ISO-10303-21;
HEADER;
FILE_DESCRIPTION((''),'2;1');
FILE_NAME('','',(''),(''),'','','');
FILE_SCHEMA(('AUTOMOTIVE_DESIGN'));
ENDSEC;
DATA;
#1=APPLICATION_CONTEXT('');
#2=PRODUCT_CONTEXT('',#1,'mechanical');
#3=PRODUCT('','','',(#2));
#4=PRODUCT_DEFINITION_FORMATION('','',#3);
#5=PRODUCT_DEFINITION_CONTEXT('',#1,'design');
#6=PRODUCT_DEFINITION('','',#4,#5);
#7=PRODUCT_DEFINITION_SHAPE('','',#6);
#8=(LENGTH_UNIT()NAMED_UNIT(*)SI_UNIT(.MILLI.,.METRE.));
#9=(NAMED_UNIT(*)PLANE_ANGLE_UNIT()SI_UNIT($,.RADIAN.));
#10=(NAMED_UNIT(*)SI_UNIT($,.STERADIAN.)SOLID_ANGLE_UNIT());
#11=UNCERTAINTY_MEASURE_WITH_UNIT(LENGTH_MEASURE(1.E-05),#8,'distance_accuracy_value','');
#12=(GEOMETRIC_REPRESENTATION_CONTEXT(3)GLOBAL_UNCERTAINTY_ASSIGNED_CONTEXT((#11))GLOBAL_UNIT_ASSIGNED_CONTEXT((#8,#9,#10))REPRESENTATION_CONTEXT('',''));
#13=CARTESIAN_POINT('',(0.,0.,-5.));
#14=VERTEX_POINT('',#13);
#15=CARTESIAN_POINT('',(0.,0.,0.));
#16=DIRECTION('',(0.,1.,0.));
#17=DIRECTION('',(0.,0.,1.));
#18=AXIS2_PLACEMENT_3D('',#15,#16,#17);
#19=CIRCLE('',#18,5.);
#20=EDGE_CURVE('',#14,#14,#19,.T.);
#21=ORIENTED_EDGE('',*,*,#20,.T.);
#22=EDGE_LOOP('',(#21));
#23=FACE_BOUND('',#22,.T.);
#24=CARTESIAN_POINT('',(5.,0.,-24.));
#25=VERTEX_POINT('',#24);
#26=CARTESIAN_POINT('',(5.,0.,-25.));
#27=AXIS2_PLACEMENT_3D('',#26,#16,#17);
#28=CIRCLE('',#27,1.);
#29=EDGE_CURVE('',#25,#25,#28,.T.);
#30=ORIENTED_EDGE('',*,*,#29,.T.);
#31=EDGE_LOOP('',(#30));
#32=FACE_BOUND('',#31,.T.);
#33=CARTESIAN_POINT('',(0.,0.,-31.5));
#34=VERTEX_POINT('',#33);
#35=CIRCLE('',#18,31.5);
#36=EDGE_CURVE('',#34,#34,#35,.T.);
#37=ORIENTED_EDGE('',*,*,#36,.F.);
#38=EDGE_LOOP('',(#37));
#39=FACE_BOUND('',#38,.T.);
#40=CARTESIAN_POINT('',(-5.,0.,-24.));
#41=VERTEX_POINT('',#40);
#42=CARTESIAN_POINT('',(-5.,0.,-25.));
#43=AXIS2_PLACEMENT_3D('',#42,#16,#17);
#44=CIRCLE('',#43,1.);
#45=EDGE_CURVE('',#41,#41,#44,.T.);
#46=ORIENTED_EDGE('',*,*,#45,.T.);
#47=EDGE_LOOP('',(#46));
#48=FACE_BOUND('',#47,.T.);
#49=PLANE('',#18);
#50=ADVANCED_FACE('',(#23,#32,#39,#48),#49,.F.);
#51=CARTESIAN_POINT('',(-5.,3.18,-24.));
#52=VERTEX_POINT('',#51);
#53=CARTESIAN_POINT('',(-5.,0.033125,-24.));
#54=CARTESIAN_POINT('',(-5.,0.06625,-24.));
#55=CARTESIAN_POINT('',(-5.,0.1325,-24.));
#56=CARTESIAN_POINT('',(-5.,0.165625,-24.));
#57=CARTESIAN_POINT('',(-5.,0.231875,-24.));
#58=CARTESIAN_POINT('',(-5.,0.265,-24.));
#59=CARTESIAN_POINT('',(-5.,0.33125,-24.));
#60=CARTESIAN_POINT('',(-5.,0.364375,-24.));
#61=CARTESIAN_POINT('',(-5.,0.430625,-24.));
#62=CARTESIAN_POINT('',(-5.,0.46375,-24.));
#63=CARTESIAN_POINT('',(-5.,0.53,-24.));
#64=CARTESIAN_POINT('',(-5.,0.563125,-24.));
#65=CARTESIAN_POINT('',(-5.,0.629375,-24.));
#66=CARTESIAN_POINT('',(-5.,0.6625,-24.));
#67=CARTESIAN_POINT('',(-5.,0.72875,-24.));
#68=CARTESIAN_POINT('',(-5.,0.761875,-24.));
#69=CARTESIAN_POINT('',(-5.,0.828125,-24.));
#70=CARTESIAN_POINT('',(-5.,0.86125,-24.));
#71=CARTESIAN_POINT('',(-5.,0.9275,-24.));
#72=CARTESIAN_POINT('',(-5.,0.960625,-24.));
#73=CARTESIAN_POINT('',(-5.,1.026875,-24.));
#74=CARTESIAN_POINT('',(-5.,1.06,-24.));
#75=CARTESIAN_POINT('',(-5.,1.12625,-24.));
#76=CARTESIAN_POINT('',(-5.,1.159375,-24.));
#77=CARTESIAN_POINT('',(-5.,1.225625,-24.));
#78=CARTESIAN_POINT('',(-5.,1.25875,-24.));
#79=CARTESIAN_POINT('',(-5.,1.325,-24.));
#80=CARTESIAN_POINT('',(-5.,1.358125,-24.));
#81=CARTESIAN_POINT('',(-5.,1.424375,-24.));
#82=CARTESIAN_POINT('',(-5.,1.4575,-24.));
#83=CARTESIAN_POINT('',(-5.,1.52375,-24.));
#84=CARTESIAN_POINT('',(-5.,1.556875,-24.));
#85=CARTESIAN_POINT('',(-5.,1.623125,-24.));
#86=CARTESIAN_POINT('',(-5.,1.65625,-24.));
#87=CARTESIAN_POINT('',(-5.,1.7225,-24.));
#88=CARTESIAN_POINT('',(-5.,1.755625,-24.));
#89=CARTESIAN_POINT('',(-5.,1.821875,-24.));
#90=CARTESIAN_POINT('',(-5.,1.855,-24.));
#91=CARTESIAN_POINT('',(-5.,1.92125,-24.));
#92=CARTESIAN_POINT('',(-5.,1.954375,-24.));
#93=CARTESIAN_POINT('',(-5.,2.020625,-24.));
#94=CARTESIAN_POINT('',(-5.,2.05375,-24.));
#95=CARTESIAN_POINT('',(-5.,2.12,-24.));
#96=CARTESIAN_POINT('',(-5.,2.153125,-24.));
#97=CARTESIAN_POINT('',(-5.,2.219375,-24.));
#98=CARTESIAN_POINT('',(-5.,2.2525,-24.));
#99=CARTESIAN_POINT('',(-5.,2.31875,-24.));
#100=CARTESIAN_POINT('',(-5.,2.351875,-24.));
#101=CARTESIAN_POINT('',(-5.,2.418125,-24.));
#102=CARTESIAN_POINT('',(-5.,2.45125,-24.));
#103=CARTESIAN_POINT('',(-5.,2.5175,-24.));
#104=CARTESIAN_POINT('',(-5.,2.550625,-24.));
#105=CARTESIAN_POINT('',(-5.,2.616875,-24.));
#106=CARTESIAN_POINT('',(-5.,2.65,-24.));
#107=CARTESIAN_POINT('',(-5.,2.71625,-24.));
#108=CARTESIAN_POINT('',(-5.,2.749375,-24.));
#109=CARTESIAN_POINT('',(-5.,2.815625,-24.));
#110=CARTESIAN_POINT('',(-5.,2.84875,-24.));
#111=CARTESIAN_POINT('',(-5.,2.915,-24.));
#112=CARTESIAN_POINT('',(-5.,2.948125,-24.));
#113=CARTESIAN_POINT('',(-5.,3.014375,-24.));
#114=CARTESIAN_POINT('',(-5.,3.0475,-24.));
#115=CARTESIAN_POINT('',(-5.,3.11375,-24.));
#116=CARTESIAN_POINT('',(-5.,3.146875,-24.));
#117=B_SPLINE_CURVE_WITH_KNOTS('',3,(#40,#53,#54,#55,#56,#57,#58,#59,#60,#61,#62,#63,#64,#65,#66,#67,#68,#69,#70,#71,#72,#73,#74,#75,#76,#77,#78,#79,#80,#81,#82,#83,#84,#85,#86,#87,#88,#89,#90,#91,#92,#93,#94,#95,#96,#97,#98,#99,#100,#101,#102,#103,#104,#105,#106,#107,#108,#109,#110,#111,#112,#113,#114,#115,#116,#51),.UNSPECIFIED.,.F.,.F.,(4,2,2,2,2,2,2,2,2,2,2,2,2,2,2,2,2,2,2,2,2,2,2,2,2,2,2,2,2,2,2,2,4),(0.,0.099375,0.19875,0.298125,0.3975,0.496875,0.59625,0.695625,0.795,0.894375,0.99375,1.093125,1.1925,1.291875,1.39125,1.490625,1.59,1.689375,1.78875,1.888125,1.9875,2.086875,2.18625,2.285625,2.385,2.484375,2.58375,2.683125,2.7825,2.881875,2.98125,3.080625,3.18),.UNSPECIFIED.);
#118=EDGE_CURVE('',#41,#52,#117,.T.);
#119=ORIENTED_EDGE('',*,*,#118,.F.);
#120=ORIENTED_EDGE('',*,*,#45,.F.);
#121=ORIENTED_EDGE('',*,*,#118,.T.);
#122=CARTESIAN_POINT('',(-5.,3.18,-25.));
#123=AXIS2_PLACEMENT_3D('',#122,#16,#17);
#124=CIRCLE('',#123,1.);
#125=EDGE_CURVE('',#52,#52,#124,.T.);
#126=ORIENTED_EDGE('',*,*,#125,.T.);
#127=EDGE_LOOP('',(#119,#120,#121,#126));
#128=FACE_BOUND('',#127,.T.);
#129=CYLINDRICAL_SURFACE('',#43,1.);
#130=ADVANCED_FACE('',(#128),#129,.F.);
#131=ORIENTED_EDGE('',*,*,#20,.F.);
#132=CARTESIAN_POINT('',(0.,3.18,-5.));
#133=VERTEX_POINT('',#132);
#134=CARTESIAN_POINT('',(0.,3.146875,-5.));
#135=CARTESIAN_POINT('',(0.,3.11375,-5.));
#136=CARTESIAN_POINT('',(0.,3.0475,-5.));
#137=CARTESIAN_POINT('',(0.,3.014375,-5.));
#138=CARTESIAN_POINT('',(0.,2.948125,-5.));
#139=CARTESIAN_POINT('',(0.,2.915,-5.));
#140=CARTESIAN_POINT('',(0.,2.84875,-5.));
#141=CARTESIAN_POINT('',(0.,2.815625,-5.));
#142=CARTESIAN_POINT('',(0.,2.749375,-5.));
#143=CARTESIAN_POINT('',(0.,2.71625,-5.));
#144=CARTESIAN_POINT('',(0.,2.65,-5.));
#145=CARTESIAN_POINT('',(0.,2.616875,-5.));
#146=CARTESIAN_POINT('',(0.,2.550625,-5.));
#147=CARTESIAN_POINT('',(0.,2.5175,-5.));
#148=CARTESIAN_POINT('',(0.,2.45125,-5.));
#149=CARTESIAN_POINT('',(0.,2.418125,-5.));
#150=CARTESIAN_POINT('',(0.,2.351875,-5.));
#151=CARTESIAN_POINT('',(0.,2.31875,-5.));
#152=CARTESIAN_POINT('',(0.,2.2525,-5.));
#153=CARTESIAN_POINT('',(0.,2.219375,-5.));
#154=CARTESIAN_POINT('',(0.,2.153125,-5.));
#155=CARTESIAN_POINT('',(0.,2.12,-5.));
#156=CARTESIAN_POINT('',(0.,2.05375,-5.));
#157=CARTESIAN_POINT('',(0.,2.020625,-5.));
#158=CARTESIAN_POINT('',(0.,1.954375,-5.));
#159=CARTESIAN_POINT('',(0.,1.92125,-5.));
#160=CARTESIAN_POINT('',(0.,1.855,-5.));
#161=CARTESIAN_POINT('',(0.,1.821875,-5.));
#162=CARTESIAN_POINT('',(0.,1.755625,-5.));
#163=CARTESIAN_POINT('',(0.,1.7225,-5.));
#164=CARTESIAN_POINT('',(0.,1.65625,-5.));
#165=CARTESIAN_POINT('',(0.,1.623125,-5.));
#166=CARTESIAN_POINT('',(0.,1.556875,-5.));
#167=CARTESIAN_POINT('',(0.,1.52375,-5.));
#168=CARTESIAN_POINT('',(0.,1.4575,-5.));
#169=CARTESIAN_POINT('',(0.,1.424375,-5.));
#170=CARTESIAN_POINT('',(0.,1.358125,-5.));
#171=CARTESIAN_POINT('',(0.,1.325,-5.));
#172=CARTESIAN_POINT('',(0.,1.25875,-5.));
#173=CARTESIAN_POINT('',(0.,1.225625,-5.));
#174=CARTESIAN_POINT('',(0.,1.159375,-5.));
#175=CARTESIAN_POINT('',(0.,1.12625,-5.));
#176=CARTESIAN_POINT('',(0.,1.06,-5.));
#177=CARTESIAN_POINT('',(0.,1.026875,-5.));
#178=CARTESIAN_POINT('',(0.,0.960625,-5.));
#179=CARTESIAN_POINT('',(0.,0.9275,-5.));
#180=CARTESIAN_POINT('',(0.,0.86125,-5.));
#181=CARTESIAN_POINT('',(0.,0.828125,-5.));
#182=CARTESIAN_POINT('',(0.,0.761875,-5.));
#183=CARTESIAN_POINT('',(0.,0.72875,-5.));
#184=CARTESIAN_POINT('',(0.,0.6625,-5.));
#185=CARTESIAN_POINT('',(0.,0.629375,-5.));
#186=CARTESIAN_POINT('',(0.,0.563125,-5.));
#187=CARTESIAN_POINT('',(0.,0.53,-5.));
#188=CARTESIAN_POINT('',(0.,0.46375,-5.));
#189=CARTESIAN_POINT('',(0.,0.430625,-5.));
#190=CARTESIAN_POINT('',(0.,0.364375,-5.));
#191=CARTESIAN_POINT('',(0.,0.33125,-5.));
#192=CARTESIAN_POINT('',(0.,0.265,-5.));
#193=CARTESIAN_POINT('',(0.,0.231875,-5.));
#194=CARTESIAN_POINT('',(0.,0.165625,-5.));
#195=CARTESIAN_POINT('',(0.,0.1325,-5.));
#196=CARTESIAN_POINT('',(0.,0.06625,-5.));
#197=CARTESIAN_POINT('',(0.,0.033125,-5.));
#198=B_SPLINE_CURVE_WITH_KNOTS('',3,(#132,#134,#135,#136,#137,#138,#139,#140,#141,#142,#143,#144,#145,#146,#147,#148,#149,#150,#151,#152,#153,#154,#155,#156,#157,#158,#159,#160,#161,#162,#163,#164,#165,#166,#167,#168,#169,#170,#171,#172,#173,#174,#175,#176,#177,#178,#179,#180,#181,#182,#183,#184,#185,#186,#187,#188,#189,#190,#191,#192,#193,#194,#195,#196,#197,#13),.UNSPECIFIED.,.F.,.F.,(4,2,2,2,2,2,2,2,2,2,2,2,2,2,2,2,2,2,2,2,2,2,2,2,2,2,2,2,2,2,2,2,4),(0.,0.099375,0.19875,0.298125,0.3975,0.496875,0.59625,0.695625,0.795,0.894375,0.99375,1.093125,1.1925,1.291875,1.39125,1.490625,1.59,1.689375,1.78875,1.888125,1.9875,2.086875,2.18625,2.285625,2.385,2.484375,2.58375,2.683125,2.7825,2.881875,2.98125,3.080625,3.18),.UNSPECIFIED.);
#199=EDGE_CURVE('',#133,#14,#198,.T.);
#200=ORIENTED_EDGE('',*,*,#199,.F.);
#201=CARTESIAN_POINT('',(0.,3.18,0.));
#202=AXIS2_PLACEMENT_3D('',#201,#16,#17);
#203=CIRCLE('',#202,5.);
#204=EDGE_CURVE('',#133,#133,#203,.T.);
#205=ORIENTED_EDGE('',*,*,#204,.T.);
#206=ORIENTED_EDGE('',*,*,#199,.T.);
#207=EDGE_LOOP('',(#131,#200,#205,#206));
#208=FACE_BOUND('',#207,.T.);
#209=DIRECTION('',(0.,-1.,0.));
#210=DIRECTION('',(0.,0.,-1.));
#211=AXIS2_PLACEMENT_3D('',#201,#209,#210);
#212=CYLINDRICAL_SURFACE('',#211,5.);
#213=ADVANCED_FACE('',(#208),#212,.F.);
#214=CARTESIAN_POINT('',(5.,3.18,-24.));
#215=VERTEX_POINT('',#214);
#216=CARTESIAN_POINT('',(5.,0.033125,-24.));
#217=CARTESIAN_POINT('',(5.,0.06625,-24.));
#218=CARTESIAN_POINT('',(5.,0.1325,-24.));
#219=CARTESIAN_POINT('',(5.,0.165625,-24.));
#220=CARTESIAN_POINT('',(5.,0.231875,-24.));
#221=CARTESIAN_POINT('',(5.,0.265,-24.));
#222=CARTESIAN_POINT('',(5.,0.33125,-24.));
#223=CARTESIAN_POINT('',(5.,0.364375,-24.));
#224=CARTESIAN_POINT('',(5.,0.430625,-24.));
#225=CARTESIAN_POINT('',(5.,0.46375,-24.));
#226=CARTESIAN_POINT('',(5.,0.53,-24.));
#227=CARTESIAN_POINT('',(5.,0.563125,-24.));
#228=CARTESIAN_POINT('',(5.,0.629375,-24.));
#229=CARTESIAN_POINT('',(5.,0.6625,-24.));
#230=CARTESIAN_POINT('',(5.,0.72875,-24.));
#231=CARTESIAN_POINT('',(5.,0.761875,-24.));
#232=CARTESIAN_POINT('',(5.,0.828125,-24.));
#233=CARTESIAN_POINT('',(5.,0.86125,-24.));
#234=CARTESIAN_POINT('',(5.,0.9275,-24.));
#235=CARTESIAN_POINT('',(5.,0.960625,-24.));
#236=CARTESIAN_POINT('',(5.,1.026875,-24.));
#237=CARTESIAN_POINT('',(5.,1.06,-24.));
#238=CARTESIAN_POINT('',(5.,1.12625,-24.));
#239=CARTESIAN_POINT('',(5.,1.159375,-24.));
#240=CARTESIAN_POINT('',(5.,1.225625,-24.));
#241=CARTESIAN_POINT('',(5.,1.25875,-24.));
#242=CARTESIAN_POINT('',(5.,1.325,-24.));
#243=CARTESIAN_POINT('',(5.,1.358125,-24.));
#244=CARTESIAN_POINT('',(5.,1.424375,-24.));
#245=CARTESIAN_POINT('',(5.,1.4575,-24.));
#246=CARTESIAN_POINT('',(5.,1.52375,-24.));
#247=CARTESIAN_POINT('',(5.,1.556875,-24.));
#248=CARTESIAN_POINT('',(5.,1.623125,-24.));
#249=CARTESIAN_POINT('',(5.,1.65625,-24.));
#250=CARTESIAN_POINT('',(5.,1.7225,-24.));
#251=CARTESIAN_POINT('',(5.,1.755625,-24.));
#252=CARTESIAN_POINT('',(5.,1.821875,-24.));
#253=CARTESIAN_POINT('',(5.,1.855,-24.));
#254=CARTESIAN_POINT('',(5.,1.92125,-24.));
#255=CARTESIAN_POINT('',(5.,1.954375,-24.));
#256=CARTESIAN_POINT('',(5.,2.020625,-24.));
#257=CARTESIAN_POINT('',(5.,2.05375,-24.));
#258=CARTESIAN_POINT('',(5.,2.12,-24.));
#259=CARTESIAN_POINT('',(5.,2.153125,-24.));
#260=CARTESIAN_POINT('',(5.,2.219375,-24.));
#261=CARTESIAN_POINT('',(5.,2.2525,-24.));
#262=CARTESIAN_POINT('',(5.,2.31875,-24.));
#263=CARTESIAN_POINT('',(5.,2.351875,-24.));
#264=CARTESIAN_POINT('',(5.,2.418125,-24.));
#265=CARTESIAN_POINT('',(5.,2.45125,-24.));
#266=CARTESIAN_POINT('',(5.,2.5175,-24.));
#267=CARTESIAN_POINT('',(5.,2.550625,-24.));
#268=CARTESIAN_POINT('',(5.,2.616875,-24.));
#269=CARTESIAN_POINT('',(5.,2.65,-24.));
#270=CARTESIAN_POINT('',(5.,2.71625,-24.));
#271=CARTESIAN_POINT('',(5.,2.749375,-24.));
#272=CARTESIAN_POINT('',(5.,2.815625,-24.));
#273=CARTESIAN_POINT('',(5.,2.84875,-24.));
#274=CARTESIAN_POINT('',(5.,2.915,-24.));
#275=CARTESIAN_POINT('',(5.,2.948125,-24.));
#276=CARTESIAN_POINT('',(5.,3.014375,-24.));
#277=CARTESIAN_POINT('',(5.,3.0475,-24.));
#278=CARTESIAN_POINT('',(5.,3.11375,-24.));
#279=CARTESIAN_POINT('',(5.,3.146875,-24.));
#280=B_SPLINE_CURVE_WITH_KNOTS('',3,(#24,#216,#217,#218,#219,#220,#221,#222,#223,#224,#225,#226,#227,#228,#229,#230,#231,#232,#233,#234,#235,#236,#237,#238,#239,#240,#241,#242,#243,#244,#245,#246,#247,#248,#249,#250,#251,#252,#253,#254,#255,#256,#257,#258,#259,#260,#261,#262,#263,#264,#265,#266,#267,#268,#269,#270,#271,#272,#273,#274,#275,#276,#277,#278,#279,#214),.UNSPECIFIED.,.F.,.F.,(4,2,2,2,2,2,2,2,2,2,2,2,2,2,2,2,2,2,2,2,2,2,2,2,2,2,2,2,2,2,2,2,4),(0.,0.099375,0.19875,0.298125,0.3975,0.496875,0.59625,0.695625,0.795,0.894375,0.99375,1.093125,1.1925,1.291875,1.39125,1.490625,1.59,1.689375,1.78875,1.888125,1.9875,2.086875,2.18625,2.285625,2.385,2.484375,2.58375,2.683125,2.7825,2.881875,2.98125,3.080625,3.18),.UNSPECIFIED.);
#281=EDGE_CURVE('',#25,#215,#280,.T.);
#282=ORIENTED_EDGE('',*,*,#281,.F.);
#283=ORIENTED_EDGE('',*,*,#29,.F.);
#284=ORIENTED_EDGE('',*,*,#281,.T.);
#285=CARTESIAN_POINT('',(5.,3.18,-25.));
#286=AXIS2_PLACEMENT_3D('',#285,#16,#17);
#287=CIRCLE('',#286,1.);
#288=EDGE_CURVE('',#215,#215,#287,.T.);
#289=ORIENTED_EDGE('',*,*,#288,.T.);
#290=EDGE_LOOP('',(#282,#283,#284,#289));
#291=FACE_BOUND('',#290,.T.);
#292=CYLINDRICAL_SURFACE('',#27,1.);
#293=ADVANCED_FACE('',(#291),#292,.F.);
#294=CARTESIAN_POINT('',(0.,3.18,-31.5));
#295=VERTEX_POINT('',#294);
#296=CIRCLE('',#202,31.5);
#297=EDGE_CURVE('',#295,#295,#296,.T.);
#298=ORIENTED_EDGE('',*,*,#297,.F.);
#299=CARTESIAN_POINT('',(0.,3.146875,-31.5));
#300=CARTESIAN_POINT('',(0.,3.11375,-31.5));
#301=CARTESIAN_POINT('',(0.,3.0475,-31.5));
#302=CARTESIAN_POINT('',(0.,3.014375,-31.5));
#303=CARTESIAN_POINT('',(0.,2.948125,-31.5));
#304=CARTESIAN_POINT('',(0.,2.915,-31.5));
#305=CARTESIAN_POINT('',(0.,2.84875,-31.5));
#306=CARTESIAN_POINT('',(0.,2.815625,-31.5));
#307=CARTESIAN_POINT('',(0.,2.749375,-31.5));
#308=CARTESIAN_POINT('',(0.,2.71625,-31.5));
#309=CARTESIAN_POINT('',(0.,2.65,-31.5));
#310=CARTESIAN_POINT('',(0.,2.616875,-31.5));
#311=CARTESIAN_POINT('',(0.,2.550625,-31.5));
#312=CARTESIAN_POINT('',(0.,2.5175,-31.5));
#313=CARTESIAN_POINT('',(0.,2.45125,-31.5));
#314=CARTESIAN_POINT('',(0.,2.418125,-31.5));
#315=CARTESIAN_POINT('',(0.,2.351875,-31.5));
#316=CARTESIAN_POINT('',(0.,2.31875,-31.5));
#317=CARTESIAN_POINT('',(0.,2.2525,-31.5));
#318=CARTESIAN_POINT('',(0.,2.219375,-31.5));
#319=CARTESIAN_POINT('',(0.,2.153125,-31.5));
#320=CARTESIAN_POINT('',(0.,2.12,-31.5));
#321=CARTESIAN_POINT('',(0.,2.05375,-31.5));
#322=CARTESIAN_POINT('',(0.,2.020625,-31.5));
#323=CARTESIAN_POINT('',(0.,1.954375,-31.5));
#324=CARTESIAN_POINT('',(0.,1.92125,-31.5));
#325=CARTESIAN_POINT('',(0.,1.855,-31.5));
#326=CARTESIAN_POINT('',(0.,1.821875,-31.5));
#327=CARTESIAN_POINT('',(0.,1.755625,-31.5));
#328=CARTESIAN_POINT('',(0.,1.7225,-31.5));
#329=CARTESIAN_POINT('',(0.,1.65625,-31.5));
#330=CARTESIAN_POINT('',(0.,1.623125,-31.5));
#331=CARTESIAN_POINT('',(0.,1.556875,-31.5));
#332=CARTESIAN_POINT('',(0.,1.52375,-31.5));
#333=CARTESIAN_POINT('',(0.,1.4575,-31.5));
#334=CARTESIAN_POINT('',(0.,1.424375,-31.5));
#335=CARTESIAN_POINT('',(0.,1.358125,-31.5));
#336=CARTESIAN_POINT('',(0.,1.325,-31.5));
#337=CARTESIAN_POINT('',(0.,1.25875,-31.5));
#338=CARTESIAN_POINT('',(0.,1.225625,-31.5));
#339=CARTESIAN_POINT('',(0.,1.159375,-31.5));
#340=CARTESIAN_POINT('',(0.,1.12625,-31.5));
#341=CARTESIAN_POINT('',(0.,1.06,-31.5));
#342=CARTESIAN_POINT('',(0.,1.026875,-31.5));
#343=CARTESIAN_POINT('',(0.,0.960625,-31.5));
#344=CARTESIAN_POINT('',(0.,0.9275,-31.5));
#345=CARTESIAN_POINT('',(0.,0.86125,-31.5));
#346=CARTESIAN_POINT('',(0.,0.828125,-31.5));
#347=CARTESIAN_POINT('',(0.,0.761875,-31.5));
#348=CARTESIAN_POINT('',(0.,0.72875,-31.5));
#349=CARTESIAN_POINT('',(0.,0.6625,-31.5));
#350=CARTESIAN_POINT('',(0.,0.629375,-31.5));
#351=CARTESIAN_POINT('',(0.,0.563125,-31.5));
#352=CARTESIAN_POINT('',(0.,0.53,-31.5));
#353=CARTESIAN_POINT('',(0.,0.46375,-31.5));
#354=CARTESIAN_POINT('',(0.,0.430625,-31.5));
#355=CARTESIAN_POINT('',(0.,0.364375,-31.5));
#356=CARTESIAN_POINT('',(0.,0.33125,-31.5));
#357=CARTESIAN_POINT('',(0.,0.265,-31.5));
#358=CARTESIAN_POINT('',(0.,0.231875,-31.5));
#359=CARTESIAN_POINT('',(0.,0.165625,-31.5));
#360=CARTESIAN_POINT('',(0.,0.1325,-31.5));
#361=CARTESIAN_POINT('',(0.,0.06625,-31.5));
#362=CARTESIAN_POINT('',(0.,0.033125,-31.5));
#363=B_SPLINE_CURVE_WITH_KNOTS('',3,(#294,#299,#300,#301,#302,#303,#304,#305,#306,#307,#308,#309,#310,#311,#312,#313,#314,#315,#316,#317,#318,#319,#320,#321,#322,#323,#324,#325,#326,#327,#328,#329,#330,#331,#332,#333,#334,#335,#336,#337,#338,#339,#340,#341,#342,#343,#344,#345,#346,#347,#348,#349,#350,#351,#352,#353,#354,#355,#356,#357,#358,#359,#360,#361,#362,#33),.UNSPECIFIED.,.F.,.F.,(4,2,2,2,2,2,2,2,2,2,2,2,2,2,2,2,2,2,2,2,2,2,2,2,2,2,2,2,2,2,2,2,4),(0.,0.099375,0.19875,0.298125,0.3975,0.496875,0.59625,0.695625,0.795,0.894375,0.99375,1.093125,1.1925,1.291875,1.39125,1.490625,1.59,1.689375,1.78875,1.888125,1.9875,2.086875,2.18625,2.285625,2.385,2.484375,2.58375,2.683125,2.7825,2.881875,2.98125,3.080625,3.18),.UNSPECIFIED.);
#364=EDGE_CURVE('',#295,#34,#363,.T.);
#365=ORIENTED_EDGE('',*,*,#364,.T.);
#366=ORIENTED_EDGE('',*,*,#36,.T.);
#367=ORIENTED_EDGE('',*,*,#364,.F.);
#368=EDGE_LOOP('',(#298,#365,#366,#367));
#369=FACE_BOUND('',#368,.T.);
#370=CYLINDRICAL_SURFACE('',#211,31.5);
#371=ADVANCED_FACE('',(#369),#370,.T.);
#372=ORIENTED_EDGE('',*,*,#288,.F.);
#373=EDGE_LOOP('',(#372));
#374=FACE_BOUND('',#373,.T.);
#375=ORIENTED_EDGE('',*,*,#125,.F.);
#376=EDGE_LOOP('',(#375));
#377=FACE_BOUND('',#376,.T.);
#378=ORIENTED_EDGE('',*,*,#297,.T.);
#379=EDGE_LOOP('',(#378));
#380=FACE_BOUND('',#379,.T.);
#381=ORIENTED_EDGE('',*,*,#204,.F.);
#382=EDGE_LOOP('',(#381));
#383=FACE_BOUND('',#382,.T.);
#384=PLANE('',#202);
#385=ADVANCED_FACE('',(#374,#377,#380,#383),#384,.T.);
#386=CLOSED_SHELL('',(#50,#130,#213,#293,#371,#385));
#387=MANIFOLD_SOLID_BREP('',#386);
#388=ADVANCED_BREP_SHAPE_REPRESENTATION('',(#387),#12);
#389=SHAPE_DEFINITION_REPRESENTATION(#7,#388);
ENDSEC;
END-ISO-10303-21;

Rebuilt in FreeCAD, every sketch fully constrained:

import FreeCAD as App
import Part
import Sketcher

doc = App.newDocument("Part")
params = doc.addObject("Spreadsheet::Sheet", "Params")
for row, (alias, value) in enumerate([
    ("sketch1_diameter", "63 mm"),
    ("sketch1_diameter2", "10 mm"),
    ("pad1_length", "3.18 mm"),
    ("sketch2_diameter", "2 mm"),
], start=1):
    params.set(f"A{row}", alias)
    params.set(f"B{row}", "=" + value)
    params.setAlias(f"B{row}", alias)

body = doc.addObject("PartDesign::Body", "Body")

# Sketch on XZ plane
sketch1 = body.newObject("Sketcher::SketchObject", "Sketch")
sketch1.AttachmentSupport = (doc.getObject("XZ_Plane"), [""])
sketch1.MapMode = "FlatFace"
sketch1.addGeometry([
    Part.Circle(App.Vector(0, 0, 0), App.Vector(0, 0, 1), 32),
    Part.Circle(App.Vector(0, 0, 0), App.Vector(0, 0, 1), 5),
], False)
sketch1.addConstraint([
    Sketcher.Constraint("Coincident", 0, 3, -1, 1),
    Sketcher.Constraint("Coincident", 1, 3, -1, 1),
    Sketcher.Constraint("Diameter", 0, 63.0),
    Sketcher.Constraint("Diameter", 1, 10.0),
])
sketch1.setExpression("Constraints[2]", "Params.sketch1_diameter")
sketch1.setExpression("Constraints[3]", "Params.sketch1_diameter2")
pad1 = body.newObject("PartDesign::Pad", "Pad")
pad1.Profile = sketch1
pad1.setExpression("Length", "Params.pad1_length")
pad1.Reversed = True

# Sketch on XZ plane
sketch2 = body.newObject("Sketcher::SketchObject", "Sketch001")
sketch2.AttachmentSupport = (doc.getObject("XZ_Plane"), [""])
sketch2.MapMode = "FlatFace"
sketch2.AttachmentOffset = App.Placement(App.Vector(0, 0, -3.18), App.Rotation())
sketch2.addGeometry([
    Part.Circle(App.Vector(-5, -25, 0), App.Vector(0, 0, 1), 1),
    Part.Circle(App.Vector(5, -25, 0), App.Vector(0, 0, 1), 1),
], False)
sketch2.addConstraint([
    Sketcher.Constraint("Equal", 0, 1),
    Sketcher.Constraint("Symmetric", 0, 3, 1, 3, -2),
    Sketcher.Constraint("Diameter", 0, 2.0),
    Sketcher.Constraint("DistanceX", 0, 3, -1, 1, 5.0),
    Sketcher.Constraint("DistanceY", 0, 3, -1, 1, 25.0),
])
sketch2.setExpression("Constraints[2]", "Params.sketch2_diameter")
pocket1 = body.newObject("PartDesign::Pocket", "Pocket")
pocket1.Profile = sketch2
pocket1.Type = "ThroughAll"
pocket1.Reversed = True

doc.recompute()
